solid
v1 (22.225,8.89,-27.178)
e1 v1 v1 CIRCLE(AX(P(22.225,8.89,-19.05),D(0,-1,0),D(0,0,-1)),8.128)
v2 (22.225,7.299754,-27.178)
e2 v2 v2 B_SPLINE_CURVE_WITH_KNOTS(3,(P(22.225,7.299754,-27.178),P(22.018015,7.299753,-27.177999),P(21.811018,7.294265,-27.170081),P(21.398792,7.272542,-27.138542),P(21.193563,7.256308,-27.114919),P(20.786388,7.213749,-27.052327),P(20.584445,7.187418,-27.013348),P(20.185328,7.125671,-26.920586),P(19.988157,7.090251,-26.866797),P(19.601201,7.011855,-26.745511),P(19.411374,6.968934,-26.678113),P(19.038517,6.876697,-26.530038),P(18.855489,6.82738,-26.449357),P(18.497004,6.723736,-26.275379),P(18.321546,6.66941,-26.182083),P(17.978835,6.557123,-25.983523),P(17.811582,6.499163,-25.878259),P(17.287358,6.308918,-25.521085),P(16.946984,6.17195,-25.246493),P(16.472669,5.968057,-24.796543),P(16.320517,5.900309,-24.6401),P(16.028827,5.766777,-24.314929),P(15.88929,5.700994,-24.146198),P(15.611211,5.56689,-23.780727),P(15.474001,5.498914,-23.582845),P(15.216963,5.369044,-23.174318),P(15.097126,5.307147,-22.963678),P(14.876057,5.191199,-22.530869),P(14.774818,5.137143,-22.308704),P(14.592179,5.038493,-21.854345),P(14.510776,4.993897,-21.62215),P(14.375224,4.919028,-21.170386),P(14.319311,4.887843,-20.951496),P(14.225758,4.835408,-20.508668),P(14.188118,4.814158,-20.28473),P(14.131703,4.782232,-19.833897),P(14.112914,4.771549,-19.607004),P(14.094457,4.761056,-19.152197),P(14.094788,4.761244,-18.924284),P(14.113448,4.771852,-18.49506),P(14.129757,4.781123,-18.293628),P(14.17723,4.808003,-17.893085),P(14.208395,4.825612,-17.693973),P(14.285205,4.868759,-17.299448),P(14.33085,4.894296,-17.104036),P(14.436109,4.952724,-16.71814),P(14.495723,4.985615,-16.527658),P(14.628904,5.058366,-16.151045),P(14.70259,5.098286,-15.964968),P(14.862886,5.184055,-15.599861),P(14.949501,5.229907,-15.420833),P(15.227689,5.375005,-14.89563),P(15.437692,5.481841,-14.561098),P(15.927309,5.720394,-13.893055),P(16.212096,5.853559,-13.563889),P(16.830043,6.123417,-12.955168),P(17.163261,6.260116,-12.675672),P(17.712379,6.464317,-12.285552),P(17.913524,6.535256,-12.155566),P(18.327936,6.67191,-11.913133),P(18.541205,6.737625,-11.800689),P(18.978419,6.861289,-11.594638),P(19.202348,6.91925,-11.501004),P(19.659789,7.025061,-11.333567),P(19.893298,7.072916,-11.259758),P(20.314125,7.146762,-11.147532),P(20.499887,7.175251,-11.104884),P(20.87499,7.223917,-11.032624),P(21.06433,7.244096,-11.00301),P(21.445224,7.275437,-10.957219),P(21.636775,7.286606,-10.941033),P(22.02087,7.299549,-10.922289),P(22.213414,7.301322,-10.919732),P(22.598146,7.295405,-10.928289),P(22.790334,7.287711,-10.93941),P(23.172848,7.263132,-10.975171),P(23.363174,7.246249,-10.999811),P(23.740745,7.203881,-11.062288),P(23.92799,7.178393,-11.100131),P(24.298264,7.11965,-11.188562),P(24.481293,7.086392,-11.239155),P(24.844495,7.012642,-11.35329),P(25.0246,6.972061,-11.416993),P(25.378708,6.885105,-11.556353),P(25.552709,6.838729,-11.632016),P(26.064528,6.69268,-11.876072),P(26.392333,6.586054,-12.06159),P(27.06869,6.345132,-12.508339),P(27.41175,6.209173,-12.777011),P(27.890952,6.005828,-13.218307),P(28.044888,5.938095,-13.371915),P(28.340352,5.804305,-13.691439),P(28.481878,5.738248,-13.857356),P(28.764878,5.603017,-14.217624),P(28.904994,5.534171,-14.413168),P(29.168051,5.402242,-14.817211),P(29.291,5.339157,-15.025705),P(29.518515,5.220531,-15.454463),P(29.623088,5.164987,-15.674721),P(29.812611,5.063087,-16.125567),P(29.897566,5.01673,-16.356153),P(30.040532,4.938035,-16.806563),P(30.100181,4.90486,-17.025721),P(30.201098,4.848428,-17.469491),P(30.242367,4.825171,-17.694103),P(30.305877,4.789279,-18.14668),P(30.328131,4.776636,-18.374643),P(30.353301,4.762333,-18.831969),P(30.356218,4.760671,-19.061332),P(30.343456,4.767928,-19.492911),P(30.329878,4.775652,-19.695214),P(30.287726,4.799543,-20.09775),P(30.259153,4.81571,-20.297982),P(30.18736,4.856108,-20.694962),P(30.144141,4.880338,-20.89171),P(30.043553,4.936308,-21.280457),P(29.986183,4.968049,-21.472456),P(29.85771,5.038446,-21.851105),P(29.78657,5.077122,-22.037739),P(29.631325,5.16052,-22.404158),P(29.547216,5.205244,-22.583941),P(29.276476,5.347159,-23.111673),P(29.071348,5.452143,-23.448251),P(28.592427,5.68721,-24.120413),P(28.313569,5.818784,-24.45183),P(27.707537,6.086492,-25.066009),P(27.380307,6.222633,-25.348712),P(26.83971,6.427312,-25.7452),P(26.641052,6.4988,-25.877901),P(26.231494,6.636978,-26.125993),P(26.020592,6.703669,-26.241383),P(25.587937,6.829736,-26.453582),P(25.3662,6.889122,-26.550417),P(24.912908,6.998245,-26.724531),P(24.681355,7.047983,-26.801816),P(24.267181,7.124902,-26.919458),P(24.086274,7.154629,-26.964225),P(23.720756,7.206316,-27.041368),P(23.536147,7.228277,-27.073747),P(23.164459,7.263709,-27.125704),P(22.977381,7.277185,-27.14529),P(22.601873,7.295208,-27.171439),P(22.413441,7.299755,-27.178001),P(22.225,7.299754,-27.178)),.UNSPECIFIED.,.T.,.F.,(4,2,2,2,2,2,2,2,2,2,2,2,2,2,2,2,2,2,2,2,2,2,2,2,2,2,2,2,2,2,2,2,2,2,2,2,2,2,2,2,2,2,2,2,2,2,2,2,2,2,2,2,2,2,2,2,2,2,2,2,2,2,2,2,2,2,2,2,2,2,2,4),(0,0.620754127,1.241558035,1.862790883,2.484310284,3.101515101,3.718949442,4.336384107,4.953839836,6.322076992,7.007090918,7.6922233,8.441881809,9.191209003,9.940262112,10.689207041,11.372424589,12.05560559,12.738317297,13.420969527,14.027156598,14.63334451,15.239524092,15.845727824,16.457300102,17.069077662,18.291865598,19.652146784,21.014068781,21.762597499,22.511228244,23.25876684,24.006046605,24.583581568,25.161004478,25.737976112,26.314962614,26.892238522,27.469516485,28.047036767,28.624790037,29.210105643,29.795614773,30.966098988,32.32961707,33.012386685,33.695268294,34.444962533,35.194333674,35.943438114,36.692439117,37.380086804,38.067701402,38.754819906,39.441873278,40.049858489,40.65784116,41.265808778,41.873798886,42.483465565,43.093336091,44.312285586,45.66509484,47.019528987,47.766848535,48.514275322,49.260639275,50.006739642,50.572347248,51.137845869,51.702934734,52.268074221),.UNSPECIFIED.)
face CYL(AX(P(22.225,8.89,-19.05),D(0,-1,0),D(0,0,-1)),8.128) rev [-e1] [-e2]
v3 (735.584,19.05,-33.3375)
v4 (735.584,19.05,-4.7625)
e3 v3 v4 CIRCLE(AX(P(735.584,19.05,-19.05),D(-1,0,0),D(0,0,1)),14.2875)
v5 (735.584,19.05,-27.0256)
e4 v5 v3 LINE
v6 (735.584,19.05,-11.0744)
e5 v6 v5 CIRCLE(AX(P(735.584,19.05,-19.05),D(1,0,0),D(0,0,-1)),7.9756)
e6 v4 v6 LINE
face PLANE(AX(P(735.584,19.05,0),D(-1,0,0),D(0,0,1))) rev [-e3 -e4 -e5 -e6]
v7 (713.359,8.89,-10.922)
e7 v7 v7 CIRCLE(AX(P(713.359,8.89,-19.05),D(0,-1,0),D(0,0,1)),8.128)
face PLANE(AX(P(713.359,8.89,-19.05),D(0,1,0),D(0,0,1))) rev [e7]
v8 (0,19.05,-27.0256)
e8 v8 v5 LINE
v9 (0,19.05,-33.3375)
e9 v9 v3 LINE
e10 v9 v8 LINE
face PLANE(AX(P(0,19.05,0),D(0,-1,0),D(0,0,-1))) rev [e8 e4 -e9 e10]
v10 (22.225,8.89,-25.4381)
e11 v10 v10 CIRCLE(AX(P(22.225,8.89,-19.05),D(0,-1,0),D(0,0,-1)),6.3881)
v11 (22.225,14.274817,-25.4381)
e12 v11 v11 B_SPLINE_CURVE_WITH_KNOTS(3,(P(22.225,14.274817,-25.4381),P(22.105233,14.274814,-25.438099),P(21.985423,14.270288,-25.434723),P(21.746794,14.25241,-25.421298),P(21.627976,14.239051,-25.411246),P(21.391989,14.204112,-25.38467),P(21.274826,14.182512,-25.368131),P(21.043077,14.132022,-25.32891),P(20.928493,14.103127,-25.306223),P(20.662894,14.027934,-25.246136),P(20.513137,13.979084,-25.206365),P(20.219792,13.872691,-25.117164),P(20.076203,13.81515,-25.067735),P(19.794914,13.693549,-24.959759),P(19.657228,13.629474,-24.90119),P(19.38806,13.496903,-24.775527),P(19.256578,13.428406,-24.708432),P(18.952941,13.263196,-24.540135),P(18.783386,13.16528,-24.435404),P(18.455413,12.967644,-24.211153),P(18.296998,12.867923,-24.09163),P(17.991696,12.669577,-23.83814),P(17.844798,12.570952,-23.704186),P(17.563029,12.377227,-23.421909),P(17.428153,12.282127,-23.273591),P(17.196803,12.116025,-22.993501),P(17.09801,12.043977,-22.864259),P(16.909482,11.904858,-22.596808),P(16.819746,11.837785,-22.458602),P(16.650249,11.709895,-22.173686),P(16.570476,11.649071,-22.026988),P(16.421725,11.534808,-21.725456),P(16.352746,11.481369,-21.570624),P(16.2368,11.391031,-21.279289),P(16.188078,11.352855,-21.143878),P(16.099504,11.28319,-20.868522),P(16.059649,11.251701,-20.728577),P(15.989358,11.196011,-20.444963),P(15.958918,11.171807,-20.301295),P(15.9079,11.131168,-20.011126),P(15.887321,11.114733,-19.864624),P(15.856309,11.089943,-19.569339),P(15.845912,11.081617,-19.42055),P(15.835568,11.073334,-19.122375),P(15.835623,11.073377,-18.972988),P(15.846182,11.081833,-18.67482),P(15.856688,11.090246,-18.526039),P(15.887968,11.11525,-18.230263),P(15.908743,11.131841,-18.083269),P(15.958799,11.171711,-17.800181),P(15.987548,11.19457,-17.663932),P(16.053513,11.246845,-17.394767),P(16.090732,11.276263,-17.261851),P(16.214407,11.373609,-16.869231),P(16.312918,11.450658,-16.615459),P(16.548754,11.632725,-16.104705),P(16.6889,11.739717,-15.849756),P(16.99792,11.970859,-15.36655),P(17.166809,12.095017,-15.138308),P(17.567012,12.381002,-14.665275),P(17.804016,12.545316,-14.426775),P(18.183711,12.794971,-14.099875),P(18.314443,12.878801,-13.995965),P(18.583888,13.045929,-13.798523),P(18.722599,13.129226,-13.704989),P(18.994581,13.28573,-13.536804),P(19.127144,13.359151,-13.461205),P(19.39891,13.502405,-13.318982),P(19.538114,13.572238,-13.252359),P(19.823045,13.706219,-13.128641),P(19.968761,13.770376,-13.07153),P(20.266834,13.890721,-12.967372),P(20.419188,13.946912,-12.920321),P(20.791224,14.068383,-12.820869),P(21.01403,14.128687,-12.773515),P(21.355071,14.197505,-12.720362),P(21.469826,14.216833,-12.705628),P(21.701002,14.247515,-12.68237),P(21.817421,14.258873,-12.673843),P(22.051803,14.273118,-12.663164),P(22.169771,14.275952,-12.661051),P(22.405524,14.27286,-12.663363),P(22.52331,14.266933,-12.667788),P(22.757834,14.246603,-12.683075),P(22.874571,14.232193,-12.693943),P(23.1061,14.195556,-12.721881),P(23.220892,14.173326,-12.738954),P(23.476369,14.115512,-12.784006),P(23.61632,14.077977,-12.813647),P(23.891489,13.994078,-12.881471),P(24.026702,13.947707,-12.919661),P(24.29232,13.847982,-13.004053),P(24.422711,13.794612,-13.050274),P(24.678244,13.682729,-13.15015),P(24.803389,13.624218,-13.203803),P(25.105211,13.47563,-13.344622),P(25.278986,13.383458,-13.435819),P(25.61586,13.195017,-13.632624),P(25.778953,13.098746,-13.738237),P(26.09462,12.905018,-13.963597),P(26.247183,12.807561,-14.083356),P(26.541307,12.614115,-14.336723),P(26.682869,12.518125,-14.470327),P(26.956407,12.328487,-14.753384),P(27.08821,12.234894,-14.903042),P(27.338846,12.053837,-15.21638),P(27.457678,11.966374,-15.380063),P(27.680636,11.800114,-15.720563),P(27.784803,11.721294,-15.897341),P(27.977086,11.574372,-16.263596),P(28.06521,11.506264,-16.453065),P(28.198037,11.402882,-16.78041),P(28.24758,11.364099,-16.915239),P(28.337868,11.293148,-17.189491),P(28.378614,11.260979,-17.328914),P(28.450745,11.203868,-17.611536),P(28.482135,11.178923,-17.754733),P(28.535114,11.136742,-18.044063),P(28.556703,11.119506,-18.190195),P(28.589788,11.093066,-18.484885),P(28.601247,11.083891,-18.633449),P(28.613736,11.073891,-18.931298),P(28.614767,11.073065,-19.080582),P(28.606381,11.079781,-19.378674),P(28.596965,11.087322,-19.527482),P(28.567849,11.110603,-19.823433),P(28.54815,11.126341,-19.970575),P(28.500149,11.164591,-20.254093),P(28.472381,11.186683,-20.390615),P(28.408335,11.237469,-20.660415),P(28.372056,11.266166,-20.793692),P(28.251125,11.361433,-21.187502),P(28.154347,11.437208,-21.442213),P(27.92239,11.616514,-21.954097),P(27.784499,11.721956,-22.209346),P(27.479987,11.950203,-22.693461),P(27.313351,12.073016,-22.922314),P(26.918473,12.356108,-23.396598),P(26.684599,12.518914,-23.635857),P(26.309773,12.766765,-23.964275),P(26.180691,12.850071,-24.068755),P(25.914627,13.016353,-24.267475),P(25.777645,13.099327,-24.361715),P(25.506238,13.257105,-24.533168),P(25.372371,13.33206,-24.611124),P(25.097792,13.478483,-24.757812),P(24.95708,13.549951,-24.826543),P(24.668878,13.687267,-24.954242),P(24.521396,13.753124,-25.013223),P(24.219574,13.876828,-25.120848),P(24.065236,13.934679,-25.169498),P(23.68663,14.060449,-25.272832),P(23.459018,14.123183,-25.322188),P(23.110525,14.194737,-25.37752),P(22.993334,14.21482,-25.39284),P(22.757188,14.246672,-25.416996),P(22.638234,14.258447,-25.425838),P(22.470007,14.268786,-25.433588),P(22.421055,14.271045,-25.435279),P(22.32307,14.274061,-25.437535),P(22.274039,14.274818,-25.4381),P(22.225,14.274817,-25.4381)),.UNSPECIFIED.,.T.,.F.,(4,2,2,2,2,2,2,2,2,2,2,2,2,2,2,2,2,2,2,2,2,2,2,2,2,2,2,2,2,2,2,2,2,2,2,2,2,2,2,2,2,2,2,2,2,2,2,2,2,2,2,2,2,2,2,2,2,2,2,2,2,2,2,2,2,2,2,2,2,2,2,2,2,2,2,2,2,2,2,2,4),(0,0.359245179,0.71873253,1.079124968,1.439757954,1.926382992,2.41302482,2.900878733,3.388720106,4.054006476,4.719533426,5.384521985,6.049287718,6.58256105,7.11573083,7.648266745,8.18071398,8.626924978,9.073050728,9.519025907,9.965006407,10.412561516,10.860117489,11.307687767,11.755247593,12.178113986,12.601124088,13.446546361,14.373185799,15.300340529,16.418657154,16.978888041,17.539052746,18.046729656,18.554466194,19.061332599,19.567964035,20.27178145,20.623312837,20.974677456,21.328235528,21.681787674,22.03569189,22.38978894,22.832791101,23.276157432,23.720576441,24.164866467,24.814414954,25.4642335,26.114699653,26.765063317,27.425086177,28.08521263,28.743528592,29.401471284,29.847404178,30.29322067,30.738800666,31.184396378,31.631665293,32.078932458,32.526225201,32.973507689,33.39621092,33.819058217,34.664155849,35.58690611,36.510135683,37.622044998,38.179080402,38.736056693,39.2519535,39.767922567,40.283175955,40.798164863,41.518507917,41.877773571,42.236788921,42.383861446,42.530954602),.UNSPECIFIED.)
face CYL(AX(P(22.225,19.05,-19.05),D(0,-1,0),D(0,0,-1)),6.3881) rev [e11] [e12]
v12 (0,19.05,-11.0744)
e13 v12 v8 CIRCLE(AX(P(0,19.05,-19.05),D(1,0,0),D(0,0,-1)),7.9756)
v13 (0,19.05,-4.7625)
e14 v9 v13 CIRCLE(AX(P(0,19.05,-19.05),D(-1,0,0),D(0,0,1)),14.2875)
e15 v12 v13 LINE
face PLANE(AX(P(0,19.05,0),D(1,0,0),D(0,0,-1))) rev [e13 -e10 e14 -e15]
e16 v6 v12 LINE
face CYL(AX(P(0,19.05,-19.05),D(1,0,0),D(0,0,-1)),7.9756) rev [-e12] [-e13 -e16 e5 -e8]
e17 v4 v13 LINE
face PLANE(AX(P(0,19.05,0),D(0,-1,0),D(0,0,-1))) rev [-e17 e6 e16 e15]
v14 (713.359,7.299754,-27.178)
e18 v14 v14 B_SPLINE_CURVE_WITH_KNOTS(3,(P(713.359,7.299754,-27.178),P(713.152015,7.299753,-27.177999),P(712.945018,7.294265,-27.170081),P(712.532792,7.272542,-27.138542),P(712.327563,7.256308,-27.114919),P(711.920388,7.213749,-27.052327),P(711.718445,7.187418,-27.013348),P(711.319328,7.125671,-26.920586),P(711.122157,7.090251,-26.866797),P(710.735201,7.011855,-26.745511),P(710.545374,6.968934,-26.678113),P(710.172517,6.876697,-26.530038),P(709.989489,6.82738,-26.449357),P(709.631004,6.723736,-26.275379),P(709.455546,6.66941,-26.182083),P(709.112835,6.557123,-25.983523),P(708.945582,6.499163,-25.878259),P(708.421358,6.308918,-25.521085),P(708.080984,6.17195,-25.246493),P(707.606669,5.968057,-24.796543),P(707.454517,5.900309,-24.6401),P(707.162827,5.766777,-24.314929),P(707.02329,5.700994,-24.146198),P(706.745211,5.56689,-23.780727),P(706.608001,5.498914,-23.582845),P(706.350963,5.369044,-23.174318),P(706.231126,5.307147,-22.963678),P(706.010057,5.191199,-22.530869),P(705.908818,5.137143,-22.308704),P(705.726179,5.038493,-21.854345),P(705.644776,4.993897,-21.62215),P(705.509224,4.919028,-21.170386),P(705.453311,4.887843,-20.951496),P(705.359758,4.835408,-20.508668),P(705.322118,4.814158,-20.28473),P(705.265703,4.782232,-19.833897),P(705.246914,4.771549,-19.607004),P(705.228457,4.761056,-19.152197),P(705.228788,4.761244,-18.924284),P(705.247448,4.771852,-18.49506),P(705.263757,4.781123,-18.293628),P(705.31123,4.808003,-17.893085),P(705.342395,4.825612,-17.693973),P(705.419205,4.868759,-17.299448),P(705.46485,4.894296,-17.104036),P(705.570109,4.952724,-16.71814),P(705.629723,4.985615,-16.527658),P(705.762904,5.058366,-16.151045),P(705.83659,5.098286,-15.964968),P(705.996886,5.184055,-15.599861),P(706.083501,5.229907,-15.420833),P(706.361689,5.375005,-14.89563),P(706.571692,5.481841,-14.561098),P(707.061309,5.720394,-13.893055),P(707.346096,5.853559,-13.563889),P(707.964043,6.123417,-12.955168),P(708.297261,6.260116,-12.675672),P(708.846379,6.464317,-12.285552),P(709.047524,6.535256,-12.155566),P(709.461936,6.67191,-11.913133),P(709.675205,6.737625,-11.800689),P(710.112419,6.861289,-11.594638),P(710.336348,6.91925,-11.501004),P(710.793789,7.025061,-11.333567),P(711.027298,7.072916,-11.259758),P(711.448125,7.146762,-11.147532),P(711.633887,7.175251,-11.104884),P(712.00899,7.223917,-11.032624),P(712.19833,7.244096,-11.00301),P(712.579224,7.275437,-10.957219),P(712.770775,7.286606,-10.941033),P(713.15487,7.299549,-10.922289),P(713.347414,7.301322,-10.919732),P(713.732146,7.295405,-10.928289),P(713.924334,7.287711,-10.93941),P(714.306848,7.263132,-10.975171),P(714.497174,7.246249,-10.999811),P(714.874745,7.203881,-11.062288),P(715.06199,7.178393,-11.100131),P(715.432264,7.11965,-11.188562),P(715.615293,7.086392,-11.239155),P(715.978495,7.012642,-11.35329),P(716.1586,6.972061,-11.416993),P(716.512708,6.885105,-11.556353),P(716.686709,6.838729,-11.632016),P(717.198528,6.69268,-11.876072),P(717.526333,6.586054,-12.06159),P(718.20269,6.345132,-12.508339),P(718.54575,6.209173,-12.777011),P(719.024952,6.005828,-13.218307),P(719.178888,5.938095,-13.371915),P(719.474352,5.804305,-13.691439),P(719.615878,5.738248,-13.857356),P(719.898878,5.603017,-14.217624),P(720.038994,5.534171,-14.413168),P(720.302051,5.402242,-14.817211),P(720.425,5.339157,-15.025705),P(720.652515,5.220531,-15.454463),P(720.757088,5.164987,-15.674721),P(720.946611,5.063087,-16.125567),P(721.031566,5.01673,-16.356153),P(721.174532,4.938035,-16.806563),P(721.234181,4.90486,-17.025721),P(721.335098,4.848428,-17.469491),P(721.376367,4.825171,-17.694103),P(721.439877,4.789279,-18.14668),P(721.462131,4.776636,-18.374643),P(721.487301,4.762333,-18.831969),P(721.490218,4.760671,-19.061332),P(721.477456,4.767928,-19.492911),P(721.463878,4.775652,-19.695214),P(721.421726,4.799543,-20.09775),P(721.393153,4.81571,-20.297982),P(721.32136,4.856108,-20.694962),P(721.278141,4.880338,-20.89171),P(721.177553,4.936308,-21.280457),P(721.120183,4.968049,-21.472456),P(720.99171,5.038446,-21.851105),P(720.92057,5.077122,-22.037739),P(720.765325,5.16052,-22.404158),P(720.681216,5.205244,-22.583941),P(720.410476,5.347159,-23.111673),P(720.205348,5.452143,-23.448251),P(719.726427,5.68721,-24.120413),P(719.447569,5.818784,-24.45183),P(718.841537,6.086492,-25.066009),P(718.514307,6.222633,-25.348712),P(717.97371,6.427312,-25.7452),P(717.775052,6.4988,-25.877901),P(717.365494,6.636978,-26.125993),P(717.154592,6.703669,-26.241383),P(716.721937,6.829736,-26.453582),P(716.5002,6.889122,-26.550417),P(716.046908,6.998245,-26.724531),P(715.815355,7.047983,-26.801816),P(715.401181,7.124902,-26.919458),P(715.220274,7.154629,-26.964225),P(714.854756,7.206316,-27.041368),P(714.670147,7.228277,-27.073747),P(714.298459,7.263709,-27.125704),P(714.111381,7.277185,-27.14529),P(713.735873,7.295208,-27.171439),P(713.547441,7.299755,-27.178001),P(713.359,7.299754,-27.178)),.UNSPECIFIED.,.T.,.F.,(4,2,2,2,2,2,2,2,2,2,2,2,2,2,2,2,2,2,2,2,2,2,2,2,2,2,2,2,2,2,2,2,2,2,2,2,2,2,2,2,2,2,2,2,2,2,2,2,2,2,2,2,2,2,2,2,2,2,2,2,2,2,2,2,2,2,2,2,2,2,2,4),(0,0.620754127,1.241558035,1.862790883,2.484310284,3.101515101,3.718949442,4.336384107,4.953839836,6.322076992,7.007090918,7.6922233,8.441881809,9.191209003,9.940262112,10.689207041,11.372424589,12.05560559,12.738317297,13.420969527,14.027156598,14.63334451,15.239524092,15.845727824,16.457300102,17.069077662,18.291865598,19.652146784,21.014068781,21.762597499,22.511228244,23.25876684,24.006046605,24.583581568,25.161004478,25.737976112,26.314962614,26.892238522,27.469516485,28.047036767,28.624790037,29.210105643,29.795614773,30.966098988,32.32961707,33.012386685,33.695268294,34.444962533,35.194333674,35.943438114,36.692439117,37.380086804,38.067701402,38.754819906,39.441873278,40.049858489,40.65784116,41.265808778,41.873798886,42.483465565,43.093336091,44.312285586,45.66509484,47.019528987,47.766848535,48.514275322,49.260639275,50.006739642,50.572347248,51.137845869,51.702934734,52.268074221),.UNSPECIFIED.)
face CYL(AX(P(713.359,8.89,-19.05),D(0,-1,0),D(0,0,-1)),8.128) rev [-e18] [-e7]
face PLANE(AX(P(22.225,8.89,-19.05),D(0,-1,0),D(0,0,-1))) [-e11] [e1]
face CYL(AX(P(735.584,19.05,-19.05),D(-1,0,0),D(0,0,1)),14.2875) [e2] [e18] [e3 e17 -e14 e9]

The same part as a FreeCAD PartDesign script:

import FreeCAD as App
import Part
import Sketcher
from FreeCAD import Vector
Q = App.Units.Quantity


def add_polygon(sketch, points):
    """Adds a closed chain of lines whose ends are joined by coincident constraints."""
    first, n = sketch.GeometryCount, len(points)
    for a, b in zip(points, points[1:] + points[:1]):
        sketch.addGeometry(Part.LineSegment(App.Vector(*a, 0), App.Vector(*b, 0)), False)
    for i in range(n):
        sketch.addConstraint(Sketcher.Constraint("Coincident", first + i, 2, first + (i + 1) % n, 1))

doc = App.newDocument("Part")
body = doc.addObject("PartDesign::Body", "Body")

# Sketch on XZ plane
sketch1 = body.newObject("Sketcher::SketchObject", "Sketch")
sketch1.AttachmentSupport = (doc.getObject("XZ_Plane"), [""])
sketch1.MapMode = "FlatFace"
add_polygon(sketch1, [(0, -38), (0, 0), (736, 0), (736, -38)])  # lines 0-3
sketch1.addConstraint([
    Sketcher.Constraint("Vertical", 0),
    Sketcher.Constraint("Horizontal", 1),
    Sketcher.Constraint("Vertical", 2),
    Sketcher.Constraint("Horizontal", 3),
    Sketcher.Constraint("Coincident", 0, 2, -1, 1),
    Sketcher.Constraint("DistanceY", 0, 1, 0, 2, Q("1.5 in")),
    Sketcher.Constraint("DistanceX", 1, 1, 1, 2, Q("28.96 in")),
])
pad1 = body.newObject("PartDesign::Pad", "Pad")
pad1.Profile = sketch1
pad1.Length = Q("0.75 in")
pad1.Reversed = True

# Sketch on YZ plane
sketch2 = body.newObject("Sketcher::SketchObject", "Sketch001")
sketch2.AttachmentSupport = (doc.getObject("YZ_Plane"), [""])
sketch2.MapMode = "FlatFace"
sketch2.AttachmentOffset = App.Placement(Vector(0, 0, 28.96 * 25.4), App.Rotation())
sketch2.addGeometry(Part.Circle(Vector(19, -19, 0), Vector(0, 0, 1), 8), False)
sketch2.addConstraint([
    Sketcher.Constraint("Diameter", 0, Q("0.628 in")),
    Sketcher.Constraint("DistanceX", -1, 1, 0, 3, Q("0.75 in")),
    Sketcher.Constraint("DistanceY", 0, 3, -1, 1, Q("0.75 in")),
])
pocket1 = body.newObject("PartDesign::Pocket", "Pocket")
pocket1.Profile = sketch2
pocket1.Type = "ThroughAll"

# Sketch on XZ plane
sketch3 = body.newObject("Sketcher::SketchObject", "Sketch002")
sketch3.AttachmentSupport = (doc.getObject("XZ_Plane"), [""])
sketch3.MapMode = "FlatFace"
sketch3.addGeometry(Part.Circle(Vector(22, -19, 0), Vector(0, 0, 1), 6), False)
sketch3.addConstraint([
    Sketcher.Constraint("Diameter", 0, Q("0.503 in")),
    Sketcher.Constraint("DistanceY", 0, 3, -1, 1, Q("0.75 in")),
    Sketcher.Constraint("DistanceX", -1, 1, 0, 3, Q("0.875 in")),
])
pocket2 = body.newObject("PartDesign::Pocket", "Pocket001")
pocket2.Profile = sketch3
pocket2.Type = "ThroughAll"

# Sketch on XZ plane
sketch4 = body.newObject("Sketcher::SketchObject", "Sketch003")
sketch4.AttachmentSupport = (doc.getObject("XZ_Plane"), [""])
sketch4.MapMode = "FlatFace"
sketch4.addGeometry([
    Part.Circle(Vector(22, -19, 0), Vector(0, 0, 1), 8),
    Part.Circle(Vector(713, -19, 0), Vector(0, 0, 1), 8),
], False)
sketch4.addConstraint([
    Sketcher.Constraint("Equal", 0, 1),
    Sketcher.Constraint("Horizontal", 0, 3, 1, 3),
    Sketcher.Constraint("Diameter", 0, Q("0.64 in")),
    Sketcher.Constraint("DistanceY", 0, 3, -1, 1, Q("0.75 in")),
    Sketcher.Constraint("DistanceX", 0, 3, 1, 3, Q("27.21 in")),
    Sketcher.Constraint("DistanceX", -1, 1, 0, 3, Q("0.875 in")),
])
pocket3 = body.newObject("PartDesign::Pocket", "Pocket002")
pocket3.Profile = sketch4
pocket3.Length = Q("0.35 in")

# Sketch on YZ plane
sketch5 = body.newObject("Sketcher::SketchObject", "Sketch004")
sketch5.AttachmentSupport = (doc.getObject("YZ_Plane"), [""])
sketch5.MapMode = "FlatFace"
add_polygon(sketch5, [(94, -113), (-75, -113), (-75, 75), (94, 75)])  # lines 0-3
sketch5.addGeometry(Part.Circle(Vector(19, -19, 0), Vector(0, 0, 1), 14), False)  # 4
sketch5.addConstraint([
    Sketcher.Constraint("Horizontal", 0),
    Sketcher.Constraint("Vertical", 1),
    Sketcher.Constraint("Horizontal", 2),
    Sketcher.Constraint("Vertical", 3),
    Sketcher.Constraint("Diameter", 4, Q("1.125 in")),
    Sketcher.Constraint("DistanceX", -1, 1, 4, 3, Q("0.75 in")),
    Sketcher.Constraint("DistanceY", 4, 3, -1, 1, Q("0.75 in")),
    Sketcher.Constraint("DistanceX", 0, 2, 0, 1, 168.414),
    Sketcher.Constraint("DistanceY", 1, 1, 1, 2, 187.464),
    Sketcher.Constraint("DistanceX", 0, 2, -1, 1, 74.682),
    Sketcher.Constraint("DistanceY", 0, 2, -1, 1, 112.782),
])
pocket4 = body.newObject("PartDesign::Pocket", "Pocket003")
pocket4.Profile = sketch5
pocket4.Type = "ThroughAll"
pocket4.Reversed = True

doc.recompute()
